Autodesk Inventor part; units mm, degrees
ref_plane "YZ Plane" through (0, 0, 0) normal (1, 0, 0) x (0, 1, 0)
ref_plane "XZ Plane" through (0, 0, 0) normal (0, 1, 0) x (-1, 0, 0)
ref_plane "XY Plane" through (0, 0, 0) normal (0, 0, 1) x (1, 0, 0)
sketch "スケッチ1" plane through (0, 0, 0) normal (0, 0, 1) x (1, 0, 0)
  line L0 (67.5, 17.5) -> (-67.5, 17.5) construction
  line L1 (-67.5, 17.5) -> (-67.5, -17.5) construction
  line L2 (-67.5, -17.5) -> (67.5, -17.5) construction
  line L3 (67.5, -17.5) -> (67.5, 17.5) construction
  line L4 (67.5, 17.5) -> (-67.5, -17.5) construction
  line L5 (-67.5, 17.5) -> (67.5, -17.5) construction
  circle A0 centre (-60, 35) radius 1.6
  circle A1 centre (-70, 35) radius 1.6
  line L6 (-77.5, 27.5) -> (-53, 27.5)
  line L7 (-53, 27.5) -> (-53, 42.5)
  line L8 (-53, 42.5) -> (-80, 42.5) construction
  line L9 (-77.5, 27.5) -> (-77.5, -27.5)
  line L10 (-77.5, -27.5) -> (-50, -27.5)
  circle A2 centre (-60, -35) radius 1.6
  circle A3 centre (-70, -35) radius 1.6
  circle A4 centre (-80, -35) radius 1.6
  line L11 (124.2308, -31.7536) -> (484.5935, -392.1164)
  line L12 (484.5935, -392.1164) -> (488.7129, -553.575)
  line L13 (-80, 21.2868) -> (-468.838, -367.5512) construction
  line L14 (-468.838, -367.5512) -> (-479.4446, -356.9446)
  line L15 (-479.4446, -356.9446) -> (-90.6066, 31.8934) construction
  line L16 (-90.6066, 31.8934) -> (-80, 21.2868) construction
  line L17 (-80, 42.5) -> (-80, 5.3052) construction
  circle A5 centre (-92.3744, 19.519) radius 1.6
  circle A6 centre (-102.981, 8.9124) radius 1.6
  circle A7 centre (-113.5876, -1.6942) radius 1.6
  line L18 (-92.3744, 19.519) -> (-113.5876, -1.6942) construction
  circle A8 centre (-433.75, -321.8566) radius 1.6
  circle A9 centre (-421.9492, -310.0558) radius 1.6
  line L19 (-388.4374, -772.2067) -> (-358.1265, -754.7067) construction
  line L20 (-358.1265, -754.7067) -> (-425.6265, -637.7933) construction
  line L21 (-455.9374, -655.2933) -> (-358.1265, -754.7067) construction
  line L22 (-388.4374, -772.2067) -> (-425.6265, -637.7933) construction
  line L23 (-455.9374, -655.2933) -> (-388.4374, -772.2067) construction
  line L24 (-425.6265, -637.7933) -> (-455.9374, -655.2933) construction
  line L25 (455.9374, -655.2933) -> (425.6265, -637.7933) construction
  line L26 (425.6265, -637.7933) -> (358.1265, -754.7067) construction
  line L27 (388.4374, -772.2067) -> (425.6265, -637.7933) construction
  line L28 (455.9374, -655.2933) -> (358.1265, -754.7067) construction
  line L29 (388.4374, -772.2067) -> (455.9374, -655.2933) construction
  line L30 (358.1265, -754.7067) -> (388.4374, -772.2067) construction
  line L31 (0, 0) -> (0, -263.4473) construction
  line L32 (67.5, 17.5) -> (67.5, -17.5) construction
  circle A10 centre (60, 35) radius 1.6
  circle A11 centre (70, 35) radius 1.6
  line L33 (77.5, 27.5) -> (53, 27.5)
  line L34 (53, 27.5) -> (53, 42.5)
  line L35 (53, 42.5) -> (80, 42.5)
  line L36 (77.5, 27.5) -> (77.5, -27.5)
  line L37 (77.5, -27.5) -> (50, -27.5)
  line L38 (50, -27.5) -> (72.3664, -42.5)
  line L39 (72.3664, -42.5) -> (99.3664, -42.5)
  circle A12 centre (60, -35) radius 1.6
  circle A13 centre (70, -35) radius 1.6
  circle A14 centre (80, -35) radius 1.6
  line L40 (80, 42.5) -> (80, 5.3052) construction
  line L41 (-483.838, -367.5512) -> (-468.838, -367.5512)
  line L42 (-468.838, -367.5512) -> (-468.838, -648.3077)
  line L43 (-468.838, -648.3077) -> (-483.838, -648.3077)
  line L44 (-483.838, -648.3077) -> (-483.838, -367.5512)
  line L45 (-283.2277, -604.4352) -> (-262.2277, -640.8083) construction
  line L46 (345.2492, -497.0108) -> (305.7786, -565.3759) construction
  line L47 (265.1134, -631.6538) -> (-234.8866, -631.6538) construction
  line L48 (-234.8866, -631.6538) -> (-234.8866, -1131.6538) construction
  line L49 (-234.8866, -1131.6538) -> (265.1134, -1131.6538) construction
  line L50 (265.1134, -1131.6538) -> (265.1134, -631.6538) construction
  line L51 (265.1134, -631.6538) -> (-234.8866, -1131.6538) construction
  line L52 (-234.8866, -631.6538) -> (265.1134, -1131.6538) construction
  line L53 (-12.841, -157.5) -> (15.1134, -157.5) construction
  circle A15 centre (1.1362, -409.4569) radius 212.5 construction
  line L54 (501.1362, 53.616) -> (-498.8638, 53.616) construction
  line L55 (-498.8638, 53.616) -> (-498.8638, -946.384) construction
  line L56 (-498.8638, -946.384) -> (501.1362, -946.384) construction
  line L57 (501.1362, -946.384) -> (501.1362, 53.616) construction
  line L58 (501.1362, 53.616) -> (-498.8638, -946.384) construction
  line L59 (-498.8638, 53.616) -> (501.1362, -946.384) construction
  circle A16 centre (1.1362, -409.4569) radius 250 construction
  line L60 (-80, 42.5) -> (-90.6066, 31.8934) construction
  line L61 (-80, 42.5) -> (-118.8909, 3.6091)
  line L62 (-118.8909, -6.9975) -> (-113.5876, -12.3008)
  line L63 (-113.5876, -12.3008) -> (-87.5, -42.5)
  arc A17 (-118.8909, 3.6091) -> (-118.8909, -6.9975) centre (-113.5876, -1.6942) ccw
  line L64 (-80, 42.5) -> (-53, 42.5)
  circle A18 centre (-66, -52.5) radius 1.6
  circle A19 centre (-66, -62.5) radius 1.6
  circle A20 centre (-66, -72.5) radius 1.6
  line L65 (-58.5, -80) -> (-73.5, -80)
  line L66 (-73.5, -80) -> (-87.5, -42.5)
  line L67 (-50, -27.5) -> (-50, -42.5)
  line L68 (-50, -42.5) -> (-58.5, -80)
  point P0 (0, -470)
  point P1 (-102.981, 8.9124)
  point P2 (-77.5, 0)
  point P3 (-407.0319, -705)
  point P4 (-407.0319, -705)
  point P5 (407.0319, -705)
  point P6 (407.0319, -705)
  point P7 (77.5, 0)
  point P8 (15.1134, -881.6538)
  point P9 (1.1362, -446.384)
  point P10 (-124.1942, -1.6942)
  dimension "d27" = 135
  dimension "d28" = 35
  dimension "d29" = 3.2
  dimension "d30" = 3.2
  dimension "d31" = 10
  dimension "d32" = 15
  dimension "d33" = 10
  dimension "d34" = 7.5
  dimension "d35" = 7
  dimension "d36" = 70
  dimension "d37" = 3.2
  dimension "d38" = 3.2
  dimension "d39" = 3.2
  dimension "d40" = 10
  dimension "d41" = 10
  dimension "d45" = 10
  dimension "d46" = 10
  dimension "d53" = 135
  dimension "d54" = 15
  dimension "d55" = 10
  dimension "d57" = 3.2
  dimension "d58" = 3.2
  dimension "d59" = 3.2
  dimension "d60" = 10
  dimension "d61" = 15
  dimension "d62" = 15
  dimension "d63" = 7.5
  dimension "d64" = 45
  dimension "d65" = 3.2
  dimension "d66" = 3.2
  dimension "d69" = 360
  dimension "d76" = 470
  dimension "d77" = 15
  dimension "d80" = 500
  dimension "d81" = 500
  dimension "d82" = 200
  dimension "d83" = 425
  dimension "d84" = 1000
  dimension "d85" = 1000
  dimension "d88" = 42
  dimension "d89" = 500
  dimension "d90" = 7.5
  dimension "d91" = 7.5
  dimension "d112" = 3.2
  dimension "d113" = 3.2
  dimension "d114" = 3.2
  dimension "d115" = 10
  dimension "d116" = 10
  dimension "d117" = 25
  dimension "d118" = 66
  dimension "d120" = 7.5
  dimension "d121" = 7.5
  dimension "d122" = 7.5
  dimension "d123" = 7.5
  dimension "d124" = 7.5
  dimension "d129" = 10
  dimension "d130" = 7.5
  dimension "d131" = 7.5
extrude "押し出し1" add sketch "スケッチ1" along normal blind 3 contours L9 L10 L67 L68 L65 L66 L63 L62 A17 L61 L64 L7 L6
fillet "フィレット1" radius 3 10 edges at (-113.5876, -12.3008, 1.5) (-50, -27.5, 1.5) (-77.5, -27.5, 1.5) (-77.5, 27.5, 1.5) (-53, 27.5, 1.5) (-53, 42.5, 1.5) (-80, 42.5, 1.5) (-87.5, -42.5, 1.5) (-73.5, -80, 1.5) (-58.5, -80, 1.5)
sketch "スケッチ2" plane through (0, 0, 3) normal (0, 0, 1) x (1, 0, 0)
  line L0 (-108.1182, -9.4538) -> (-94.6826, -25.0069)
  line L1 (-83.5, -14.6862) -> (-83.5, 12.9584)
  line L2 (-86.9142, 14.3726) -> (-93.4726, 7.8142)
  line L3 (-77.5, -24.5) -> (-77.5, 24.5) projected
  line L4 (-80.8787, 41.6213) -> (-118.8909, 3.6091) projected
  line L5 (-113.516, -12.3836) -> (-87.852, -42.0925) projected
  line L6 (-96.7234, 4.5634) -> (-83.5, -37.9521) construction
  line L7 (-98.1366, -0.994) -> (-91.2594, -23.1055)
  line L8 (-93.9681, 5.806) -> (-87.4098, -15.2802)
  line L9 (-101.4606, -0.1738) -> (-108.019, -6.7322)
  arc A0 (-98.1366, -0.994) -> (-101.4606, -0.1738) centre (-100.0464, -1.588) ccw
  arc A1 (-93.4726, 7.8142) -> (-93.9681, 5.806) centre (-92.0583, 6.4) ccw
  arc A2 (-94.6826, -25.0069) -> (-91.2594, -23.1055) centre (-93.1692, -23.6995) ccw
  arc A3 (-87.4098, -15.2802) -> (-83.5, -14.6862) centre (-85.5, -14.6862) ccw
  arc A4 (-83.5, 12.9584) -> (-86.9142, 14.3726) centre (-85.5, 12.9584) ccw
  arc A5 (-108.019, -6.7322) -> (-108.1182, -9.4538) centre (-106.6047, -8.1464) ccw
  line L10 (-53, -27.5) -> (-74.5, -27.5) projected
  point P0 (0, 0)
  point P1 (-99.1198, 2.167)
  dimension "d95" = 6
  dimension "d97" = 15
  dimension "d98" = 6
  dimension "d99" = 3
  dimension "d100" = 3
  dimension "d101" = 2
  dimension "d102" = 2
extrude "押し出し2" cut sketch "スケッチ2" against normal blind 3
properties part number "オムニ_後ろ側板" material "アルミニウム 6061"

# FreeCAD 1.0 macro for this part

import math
import FreeCAD as App
import Part
import Sketcher


def edges_at(feature, points):
    """Names of the edges that pass closest to the given points."""
    edges = feature.Shape.Edges
    near = lambda p: min(range(len(edges)), key=lambda i: edges[i].distToShape(Part.Vertex(*p))[0])
    return sorted({f"Edge{near(p) + 1}" for p in points})

doc = App.newDocument("Part")
body = doc.addObject("PartDesign::Body", "Body")

sketch1 = body.newObject("Sketcher::SketchObject", "Sketch")
sketch1.AttachmentSupport = (doc.getObject("XY_Plane"), [""])
sketch1.MapMode = "FlatFace"
sketch1.addGeometry(Part.LineSegment(App.Vector(-77.5, -27.5, 0), App.Vector(-77.5, 27.5, 0)), False)
sketch1.addGeometry(Part.LineSegment(App.Vector(-77.5, 27.5, 0), App.Vector(-53, 27.5, 0)), False)
sketch1.addGeometry(Part.LineSegment(App.Vector(-53, 27.5, 0), App.Vector(-53, 42.5, 0)), False)
sketch1.addGeometry(Part.LineSegment(App.Vector(-53, 42.5, 0), App.Vector(-80, 42.5, 0)), False)
sketch1.addGeometry(Part.LineSegment(App.Vector(-80, 42.5, 0), App.Vector(-118.9, 3.6, 0)), False)
sketch1.addGeometry(Part.ArcOfCircle(Part.Circle(App.Vector(-113.6, -1.7, 0), App.Vector(0, 0, 1), 7.5), math.radians(135), math.radians(225)), False)
sketch1.addGeometry(Part.LineSegment(App.Vector(-118.9, -7, 0), App.Vector(-113.6, -12.3, 0)), False)
sketch1.addGeometry(Part.LineSegment(App.Vector(-113.6, -12.3, 0), App.Vector(-87.5, -42.5, 0)), False)
sketch1.addGeometry(Part.LineSegment(App.Vector(-87.5, -42.5, 0), App.Vector(-73.5, -80, 0)), False)
sketch1.addGeometry(Part.LineSegment(App.Vector(-73.5, -80, 0), App.Vector(-58.5, -80, 0)), False)
sketch1.addGeometry(Part.LineSegment(App.Vector(-58.5, -80, 0), App.Vector(-50, -42.5, 0)), False)
sketch1.addGeometry(Part.LineSegment(App.Vector(-50, -42.5, 0), App.Vector(-50, -27.5, 0)), False)
sketch1.addGeometry(Part.LineSegment(App.Vector(-50, -27.5, 0), App.Vector(-77.5, -27.5, 0)), False)
sketch1.addGeometry(Part.Circle(App.Vector(-66, -72.5, 0), App.Vector(0, 0, 1), 1.6), False)
sketch1.addGeometry(Part.Circle(App.Vector(-66, -62.5, 0), App.Vector(0, 0, 1), 1.6), False)
sketch1.addGeometry(Part.Circle(App.Vector(-66, -52.5, 0), App.Vector(0, 0, 1), 1.6), False)
sketch1.addGeometry(Part.Circle(App.Vector(-113.6, -1.7, 0), App.Vector(0, 0, 1), 1.6), False)
sketch1.addGeometry(Part.Circle(App.Vector(-80, -35, 0), App.Vector(0, 0, 1), 1.6), False)
sketch1.addGeometry(Part.Circle(App.Vector(-70, -35, 0), App.Vector(0, 0, 1), 1.6), False)
sketch1.addGeometry(Part.Circle(App.Vector(-60, -35, 0), App.Vector(0, 0, 1), 1.6), False)
sketch1.addGeometry(Part.Circle(App.Vector(-103, 8.9, 0), App.Vector(0, 0, 1), 1.6), False)
sketch1.addGeometry(Part.Circle(App.Vector(-92.4, 19.5, 0), App.Vector(0, 0, 1), 1.6), False)
sketch1.addGeometry(Part.Circle(App.Vector(-70, 35, 0), App.Vector(0, 0, 1), 1.6), False)
sketch1.addGeometry(Part.Circle(App.Vector(-60, 35, 0), App.Vector(0, 0, 1), 1.6), False)
sketch1.addConstraint(Sketcher.Constraint("Coincident", 0, 2, 1, 1))
sketch1.addConstraint(Sketcher.Constraint("Coincident", 1, 2, 2, 1))
sketch1.addConstraint(Sketcher.Constraint("Coincident", 2, 2, 3, 1))
sketch1.addConstraint(Sketcher.Constraint("Coincident", 3, 2, 4, 1))
sketch1.addConstraint(Sketcher.Constraint("Tangent", 4, 2, 5, 1))
sketch1.addConstraint(Sketcher.Constraint("Tangent", 5, 2, 6, 1))
sketch1.addConstraint(Sketcher.Constraint("Coincident", 6, 2, 7, 1))
sketch1.addConstraint(Sketcher.Constraint("Coincident", 7, 2, 8, 1))
sketch1.addConstraint(Sketcher.Constraint("Coincident", 8, 2, 9, 1))
sketch1.addConstraint(Sketcher.Constraint("Coincident", 9, 2, 10, 1))
sketch1.addConstraint(Sketcher.Constraint("Coincident", 10, 2, 11, 1))
sketch1.addConstraint(Sketcher.Constraint("Coincident", 11, 2, 12, 1))
sketch1.addConstraint(Sketcher.Constraint("Coincident", 12, 2, 0, 1))
sketch1.addConstraint(Sketcher.Constraint("Vertical", 0))
sketch1.addConstraint(Sketcher.Constraint("Horizontal", 1))
sketch1.addConstraint(Sketcher.Constraint("Vertical", 2))
sketch1.addConstraint(Sketcher.Constraint("Horizontal", 3))
sketch1.addConstraint(Sketcher.Constraint("Horizontal", 9))
sketch1.addConstraint(Sketcher.Constraint("Vertical", 11))
sketch1.addConstraint(Sketcher.Constraint("Horizontal", 12))
sketch1.addConstraint(Sketcher.Constraint("Coincident", 16, 3, 5, 3))
sketch1.addConstraint(Sketcher.Constraint("Equal", 13, 14))
sketch1.addConstraint(Sketcher.Constraint("Equal", 14, 15))
sketch1.addConstraint(Sketcher.Constraint("Equal", 15, 16))
sketch1.addConstraint(Sketcher.Constraint("Equal", 16, 17))
sketch1.addConstraint(Sketcher.Constraint("Equal", 17, 18))
sketch1.addConstraint(Sketcher.Constraint("Equal", 18, 19))
sketch1.addConstraint(Sketcher.Constraint("Equal", 19, 20))
sketch1.addConstraint(Sketcher.Constraint("Equal", 20, 21))
sketch1.addConstraint(Sketcher.Constraint("Equal", 21, 22))
sketch1.addConstraint(Sketcher.Constraint("Equal", 22, 23))
sketch1.addConstraint(Sketcher.Constraint("Symmetric", 18, 3, 22, 3, -1))
sketch1.addConstraint(Sketcher.Constraint("Symmetric", 19, 3, 23, 3, -1))
sketch1.addConstraint(Sketcher.Constraint("Perpendicular", 4, 6))
sketch1.addConstraint(Sketcher.Constraint("Horizontal", 17, 3, 18, 3))
sketch1.addConstraint(Sketcher.Constraint("Horizontal", 18, 3, 19, 3))
sketch1.addConstraint(Sketcher.Constraint("Horizontal", 7, 2, 10, 2))
sketch1.addConstraint(Sketcher.Constraint("Vertical", 13, 3, 14, 3))
sketch1.addConstraint(Sketcher.Constraint("Vertical", 14, 3, 15, 3))
sketch1.addConstraint(Sketcher.Constraint("Vertical", 17, 3, 3, 2))
sketch1.addConstraint(Sketcher.Constraint("Vertical", 4, 2, 5, 2))
sketch1.addConstraint(Sketcher.Constraint("Vertical", 16, 3, 6, 2))
sketch1.addConstraint(Sketcher.Constraint("Equal", 9, 2))
sketch1.addConstraint(Sketcher.Constraint("Equal", 2, 11))
sketch1.addConstraint(Sketcher.Constraint("Diameter", 13, 3.2))
sketch1.addConstraint(Sketcher.Constraint("Radius", 5, 7.5))
sketch1.addConstraint(Sketcher.Constraint("DistanceX", 9, 1, 9, 2, 15.0))
sketch1.addConstraint(Sketcher.Constraint("DistanceX", 13, 3, -1, 1, 66.0))
sketch1.addConstraint(Sketcher.Constraint("DistanceY", 17, 3, -1, 1, 35.0))
sketch1.addConstraint(Sketcher.Constraint("DistanceX", 18, 3, -1, 1, 70.0))
sketch1.addConstraint(Sketcher.Constraint("DistanceY", 13, 3, 14, 3, 10.0))
sketch1.addConstraint(Sketcher.Constraint("DistanceY", 14, 3, 15, 3, 10.0))
sketch1.addConstraint(Sketcher.Constraint("DistanceX", 17, 3, 18, 3, 10.0))
sketch1.addConstraint(Sketcher.Constraint("DistanceX", 18, 3, 19, 3, 10.0))
sketch1.addConstraint(Sketcher.Constraint("DistanceX", 23, 3, 1, 2, 7.0))
sketch1.addConstraint(Sketcher.Constraint("DistanceY", 15, 3, 7, 2, 10.0))
sketch1.addConstraint(Sketcher.Constraint("DistanceY", 8, 2, 18, 3, 45.0))
sketch1.addConstraint(Sketcher.Constraint("DistanceX", 19, 3, 10, 2, 10.0))
sketch1.addConstraint(Sketcher.Constraint("DistanceX", 7, 2, 12, 2, 10.0))
sketch1.addConstraint(Sketcher.Constraint("DistanceX", 0, 2, 22, 3, 7.5))
sketch1.addConstraint(Sketcher.Constraint("DistanceY", 0, 2, 22, 3, 7.5))
sketch1.addConstraint(Sketcher.Constraint("DistanceY", 7, 2, 17, 3, 7.5))
sketch1.addConstraint(Sketcher.Constraint("DistanceX", 8, 2, 13, 3, 7.5))
sketch1.addConstraint(Sketcher.Constraint("Distance", 4, 55.0))
sketch1.addConstraint(Sketcher.Constraint("DistanceX", 4, 2, 20, 3, 15.91))
sketch1.addConstraint(Sketcher.Constraint("DistanceY", 4, 2, 21, 3, 15.91))
sketch1.addConstraint(Sketcher.Constraint("DistanceY", 5, 2, 20, 3, 15.91))
sketch1.addConstraint(Sketcher.Constraint("DistanceX", 21, 3, -1, 1, 92.3744))
pad1 = body.newObject("PartDesign::Pad", "Pad")
pad1.Profile = sketch1
pad1.Length = 3
doc.recompute()

fillet = body.newObject("PartDesign::Fillet", "Fillet")
fillet.Base = (pad1, edges_at(pad1, [
    (-113.588, -12.301, 1.5),
    (-50, -27.5, 1.5),
    (-77.5, -27.5, 1.5),
    (-77.5, 27.5, 1.5),
    (-53, 27.5, 1.5),
    (-53, 42.5, 1.5),
    (-80, 42.5, 1.5),
    (-87.5, -42.5, 1.5),
    (-73.5, -80, 1.5),
    (-58.5, -80, 1.5),
]))
fillet.Radius = 3

sketch2 = body.newObject("Sketcher::SketchObject", "Sketch001")
sketch2.AttachmentSupport = (doc.getObject("XY_Plane"), [""])
sketch2.MapMode = "FlatFace"
sketch2.AttachmentOffset = App.Placement(App.Vector(0, 0, 3), App.Rotation())
sketch2.addGeometry(Part.ArcOfCircle(Part.Circle(App.Vector(-106.6047, -8.1464, 0), App.Vector(0, 0, 1), 2.000052), math.radians(135.002026), math.radians(220.821293)), False)
sketch2.addGeometry(Part.LineSegment(App.Vector(-108.1182, -9.4538, 0), App.Vector(-94.6826, -25.0069, 0)), False)
sketch2.addGeometry(Part.ArcOfCircle(Part.Circle(App.Vector(-93.1692, -23.6995, 0), App.Vector(0, 0, 1), 1.999919), math.radians(-139.176835), math.radians(17.277122)), False)
sketch2.addGeometry(Part.LineSegment(App.Vector(-91.2594, -23.1055, 0), App.Vector(-98.1366, -0.994, 0)), False)
sketch2.addGeometry(Part.ArcOfCircle(Part.Circle(App.Vector(-100.0464, -1.588, 0), App.Vector(0, 0, 1), 2.000043), math.radians(17.277122), math.radians(135)), False)
sketch2.addGeometry(Part.LineSegment(App.Vector(-101.4606, -0.1738, 0), App.Vector(-108.019, -6.7322, 0)), False)
sketch2.addGeometry(Part.ArcOfCircle(Part.Circle(App.Vector(-85.5, -14.6862, 0), App.Vector(0, 0, 1), 2.000043), math.radians(-162.722878), math.radians(0)), False)
sketch2.addGeometry(Part.LineSegment(App.Vector(-83.5, -14.6862, 0), App.Vector(-83.5, 12.9584, 0)), False)
sketch2.addGeometry(Part.ArcOfCircle(Part.Circle(App.Vector(-85.5, 12.9584, 0), App.Vector(0, 0, 1), 2), math.radians(0), math.radians(135)), False)
sketch2.addGeometry(Part.LineSegment(App.Vector(-86.9142, 14.3726, 0), App.Vector(-93.4726, 7.8142, 0)), False)
sketch2.addGeometry(Part.ArcOfCircle(Part.Circle(App.Vector(-92.0583, 6.4, 0), App.Vector(0, 0, 1), 2.000052), math.radians(135.002026), math.radians(197.277122)), False)
sketch2.addGeometry(Part.LineSegment(App.Vector(-93.9681, 5.806, 0), App.Vector(-87.4098, -15.2802, 0)), False)
sketch2.addConstraint(Sketcher.Constraint("Coincident", 0, 2, 1, 1))
sketch2.addConstraint(Sketcher.Constraint("Coincident", 1, 2, 2, 1))
sketch2.addConstraint(Sketcher.Constraint("Coincident", 2, 2, 3, 1))
sketch2.addConstraint(Sketcher.Constraint("Coincident", 3, 2, 4, 1))
sketch2.addConstraint(Sketcher.Constraint("Coincident", 4, 2, 5, 1))
sketch2.addConstraint(Sketcher.Constraint("Coincident", 5, 2, 0, 1))
sketch2.addConstraint(Sketcher.Constraint("Coincident", 6, 2, 7, 1))
sketch2.addConstraint(Sketcher.Constraint("Coincident", 7, 2, 8, 1))
sketch2.addConstraint(Sketcher.Constraint("Coincident", 8, 2, 9, 1))
sketch2.addConstraint(Sketcher.Constraint("Coincident", 9, 2, 10, 1))
sketch2.addConstraint(Sketcher.Constraint("Coincident", 10, 2, 11, 1))
sketch2.addConstraint(Sketcher.Constraint("Coincident", 11, 2, 6, 1))
sketch2.addConstraint(Sketcher.Constraint("Vertical", 7))
sketch2.addConstraint(Sketcher.Constraint("Radius", 0, 2.0))
sketch2.addConstraint(Sketcher.Constraint("Radius", 2, 2.0))
sketch2.addConstraint(Sketcher.Constraint("Radius", 4, 2.0))
sketch2.addConstraint(Sketcher.Constraint("Radius", 6, 2.0))
sketch2.addConstraint(Sketcher.Constraint("Radius", 8, 2.0))
sketch2.addConstraint(Sketcher.Constraint("Radius", 10, 2.0))
sketch2.addConstraint(Sketcher.Constraint("DistanceX", 6, 3, -1, 1, 85.5))
sketch2.addConstraint(Sketcher.Constraint("DistanceY", -1, 1, 10, 3, 6.4))
sketch2.addConstraint(Sketcher.Constraint("DistanceY", 3, 2, 10, 2, 6.8))
sketch2.addConstraint(Sketcher.Constraint("DistanceX", 0, 2, 10, 3, 16.06))
sketch2.addConstraint(Sketcher.Constraint("DistanceY", 0, 2, 4, 2, 9.28))
sketch2.addConstraint(Sketcher.Constraint("Distance", 5, 9.275))
sketch2.addConstraint(Sketcher.Constraint("Distance", 9, 9.275))
sketch2.addConstraint(Sketcher.Constraint("DistanceY", 7, 1, 7, 2, 27.6446))
sketch2.addConstraint(Sketcher.Constraint("DistanceY", 4, 3, -1, 1, 1.588))
sketch2.addConstraint(Sketcher.Constraint("DistanceY", 1, 2, -1, 1, 25.007))
sketch2.addConstraint(Sketcher.Constraint("DistanceY", 3, 2, -1, 1, 0.994))
sketch2.addConstraint(Sketcher.Constraint("DistanceX", 5, 2, -1, 1, 108.019))
sketch2.addConstraint(Sketcher.Constraint("DistanceX", 10, 2, -1, 1, 93.968))
sketch2.addConstraint(Sketcher.Constraint("DistanceY", 2, 3, 0, 3, 15.553))
sketch2.addConstraint(Sketcher.Constraint("DistanceY", 2, 3, 8, 3, 36.658))
sketch2.addConstraint(Sketcher.Constraint("DistanceX", 4, 3, 10, 3, 7.988))
sketch2.addConstraint(Sketcher.Constraint("DistanceX", 2, 3, 10, 3, 1.111))
sketch2.addConstraint(Sketcher.Constraint("DistanceY", 1, 2, 0, 2, 15.553))
sketch2.addConstraint(Sketcher.Constraint("DistanceY", 2, 3, 2, 2, 0.594))
sketch2.addConstraint(Sketcher.Constraint("DistanceX", 10, 3, 8, 2, 5.144))
sketch2.addConstraint(Sketcher.Constraint("DistanceY", 11, 2, 6, 3, 0.594))
sketch2.addConstraint(Sketcher.Constraint("DistanceY", 11, 2, 6, 2, 0.594))
sketch2.addConstraint(Sketcher.Constraint("Distance", 11, 22.0826))
pocket1 = body.newObject("PartDesign::Pocket", "Pocket")
pocket1.Profile = sketch2
pocket1.Length = 3

doc.recompute()
